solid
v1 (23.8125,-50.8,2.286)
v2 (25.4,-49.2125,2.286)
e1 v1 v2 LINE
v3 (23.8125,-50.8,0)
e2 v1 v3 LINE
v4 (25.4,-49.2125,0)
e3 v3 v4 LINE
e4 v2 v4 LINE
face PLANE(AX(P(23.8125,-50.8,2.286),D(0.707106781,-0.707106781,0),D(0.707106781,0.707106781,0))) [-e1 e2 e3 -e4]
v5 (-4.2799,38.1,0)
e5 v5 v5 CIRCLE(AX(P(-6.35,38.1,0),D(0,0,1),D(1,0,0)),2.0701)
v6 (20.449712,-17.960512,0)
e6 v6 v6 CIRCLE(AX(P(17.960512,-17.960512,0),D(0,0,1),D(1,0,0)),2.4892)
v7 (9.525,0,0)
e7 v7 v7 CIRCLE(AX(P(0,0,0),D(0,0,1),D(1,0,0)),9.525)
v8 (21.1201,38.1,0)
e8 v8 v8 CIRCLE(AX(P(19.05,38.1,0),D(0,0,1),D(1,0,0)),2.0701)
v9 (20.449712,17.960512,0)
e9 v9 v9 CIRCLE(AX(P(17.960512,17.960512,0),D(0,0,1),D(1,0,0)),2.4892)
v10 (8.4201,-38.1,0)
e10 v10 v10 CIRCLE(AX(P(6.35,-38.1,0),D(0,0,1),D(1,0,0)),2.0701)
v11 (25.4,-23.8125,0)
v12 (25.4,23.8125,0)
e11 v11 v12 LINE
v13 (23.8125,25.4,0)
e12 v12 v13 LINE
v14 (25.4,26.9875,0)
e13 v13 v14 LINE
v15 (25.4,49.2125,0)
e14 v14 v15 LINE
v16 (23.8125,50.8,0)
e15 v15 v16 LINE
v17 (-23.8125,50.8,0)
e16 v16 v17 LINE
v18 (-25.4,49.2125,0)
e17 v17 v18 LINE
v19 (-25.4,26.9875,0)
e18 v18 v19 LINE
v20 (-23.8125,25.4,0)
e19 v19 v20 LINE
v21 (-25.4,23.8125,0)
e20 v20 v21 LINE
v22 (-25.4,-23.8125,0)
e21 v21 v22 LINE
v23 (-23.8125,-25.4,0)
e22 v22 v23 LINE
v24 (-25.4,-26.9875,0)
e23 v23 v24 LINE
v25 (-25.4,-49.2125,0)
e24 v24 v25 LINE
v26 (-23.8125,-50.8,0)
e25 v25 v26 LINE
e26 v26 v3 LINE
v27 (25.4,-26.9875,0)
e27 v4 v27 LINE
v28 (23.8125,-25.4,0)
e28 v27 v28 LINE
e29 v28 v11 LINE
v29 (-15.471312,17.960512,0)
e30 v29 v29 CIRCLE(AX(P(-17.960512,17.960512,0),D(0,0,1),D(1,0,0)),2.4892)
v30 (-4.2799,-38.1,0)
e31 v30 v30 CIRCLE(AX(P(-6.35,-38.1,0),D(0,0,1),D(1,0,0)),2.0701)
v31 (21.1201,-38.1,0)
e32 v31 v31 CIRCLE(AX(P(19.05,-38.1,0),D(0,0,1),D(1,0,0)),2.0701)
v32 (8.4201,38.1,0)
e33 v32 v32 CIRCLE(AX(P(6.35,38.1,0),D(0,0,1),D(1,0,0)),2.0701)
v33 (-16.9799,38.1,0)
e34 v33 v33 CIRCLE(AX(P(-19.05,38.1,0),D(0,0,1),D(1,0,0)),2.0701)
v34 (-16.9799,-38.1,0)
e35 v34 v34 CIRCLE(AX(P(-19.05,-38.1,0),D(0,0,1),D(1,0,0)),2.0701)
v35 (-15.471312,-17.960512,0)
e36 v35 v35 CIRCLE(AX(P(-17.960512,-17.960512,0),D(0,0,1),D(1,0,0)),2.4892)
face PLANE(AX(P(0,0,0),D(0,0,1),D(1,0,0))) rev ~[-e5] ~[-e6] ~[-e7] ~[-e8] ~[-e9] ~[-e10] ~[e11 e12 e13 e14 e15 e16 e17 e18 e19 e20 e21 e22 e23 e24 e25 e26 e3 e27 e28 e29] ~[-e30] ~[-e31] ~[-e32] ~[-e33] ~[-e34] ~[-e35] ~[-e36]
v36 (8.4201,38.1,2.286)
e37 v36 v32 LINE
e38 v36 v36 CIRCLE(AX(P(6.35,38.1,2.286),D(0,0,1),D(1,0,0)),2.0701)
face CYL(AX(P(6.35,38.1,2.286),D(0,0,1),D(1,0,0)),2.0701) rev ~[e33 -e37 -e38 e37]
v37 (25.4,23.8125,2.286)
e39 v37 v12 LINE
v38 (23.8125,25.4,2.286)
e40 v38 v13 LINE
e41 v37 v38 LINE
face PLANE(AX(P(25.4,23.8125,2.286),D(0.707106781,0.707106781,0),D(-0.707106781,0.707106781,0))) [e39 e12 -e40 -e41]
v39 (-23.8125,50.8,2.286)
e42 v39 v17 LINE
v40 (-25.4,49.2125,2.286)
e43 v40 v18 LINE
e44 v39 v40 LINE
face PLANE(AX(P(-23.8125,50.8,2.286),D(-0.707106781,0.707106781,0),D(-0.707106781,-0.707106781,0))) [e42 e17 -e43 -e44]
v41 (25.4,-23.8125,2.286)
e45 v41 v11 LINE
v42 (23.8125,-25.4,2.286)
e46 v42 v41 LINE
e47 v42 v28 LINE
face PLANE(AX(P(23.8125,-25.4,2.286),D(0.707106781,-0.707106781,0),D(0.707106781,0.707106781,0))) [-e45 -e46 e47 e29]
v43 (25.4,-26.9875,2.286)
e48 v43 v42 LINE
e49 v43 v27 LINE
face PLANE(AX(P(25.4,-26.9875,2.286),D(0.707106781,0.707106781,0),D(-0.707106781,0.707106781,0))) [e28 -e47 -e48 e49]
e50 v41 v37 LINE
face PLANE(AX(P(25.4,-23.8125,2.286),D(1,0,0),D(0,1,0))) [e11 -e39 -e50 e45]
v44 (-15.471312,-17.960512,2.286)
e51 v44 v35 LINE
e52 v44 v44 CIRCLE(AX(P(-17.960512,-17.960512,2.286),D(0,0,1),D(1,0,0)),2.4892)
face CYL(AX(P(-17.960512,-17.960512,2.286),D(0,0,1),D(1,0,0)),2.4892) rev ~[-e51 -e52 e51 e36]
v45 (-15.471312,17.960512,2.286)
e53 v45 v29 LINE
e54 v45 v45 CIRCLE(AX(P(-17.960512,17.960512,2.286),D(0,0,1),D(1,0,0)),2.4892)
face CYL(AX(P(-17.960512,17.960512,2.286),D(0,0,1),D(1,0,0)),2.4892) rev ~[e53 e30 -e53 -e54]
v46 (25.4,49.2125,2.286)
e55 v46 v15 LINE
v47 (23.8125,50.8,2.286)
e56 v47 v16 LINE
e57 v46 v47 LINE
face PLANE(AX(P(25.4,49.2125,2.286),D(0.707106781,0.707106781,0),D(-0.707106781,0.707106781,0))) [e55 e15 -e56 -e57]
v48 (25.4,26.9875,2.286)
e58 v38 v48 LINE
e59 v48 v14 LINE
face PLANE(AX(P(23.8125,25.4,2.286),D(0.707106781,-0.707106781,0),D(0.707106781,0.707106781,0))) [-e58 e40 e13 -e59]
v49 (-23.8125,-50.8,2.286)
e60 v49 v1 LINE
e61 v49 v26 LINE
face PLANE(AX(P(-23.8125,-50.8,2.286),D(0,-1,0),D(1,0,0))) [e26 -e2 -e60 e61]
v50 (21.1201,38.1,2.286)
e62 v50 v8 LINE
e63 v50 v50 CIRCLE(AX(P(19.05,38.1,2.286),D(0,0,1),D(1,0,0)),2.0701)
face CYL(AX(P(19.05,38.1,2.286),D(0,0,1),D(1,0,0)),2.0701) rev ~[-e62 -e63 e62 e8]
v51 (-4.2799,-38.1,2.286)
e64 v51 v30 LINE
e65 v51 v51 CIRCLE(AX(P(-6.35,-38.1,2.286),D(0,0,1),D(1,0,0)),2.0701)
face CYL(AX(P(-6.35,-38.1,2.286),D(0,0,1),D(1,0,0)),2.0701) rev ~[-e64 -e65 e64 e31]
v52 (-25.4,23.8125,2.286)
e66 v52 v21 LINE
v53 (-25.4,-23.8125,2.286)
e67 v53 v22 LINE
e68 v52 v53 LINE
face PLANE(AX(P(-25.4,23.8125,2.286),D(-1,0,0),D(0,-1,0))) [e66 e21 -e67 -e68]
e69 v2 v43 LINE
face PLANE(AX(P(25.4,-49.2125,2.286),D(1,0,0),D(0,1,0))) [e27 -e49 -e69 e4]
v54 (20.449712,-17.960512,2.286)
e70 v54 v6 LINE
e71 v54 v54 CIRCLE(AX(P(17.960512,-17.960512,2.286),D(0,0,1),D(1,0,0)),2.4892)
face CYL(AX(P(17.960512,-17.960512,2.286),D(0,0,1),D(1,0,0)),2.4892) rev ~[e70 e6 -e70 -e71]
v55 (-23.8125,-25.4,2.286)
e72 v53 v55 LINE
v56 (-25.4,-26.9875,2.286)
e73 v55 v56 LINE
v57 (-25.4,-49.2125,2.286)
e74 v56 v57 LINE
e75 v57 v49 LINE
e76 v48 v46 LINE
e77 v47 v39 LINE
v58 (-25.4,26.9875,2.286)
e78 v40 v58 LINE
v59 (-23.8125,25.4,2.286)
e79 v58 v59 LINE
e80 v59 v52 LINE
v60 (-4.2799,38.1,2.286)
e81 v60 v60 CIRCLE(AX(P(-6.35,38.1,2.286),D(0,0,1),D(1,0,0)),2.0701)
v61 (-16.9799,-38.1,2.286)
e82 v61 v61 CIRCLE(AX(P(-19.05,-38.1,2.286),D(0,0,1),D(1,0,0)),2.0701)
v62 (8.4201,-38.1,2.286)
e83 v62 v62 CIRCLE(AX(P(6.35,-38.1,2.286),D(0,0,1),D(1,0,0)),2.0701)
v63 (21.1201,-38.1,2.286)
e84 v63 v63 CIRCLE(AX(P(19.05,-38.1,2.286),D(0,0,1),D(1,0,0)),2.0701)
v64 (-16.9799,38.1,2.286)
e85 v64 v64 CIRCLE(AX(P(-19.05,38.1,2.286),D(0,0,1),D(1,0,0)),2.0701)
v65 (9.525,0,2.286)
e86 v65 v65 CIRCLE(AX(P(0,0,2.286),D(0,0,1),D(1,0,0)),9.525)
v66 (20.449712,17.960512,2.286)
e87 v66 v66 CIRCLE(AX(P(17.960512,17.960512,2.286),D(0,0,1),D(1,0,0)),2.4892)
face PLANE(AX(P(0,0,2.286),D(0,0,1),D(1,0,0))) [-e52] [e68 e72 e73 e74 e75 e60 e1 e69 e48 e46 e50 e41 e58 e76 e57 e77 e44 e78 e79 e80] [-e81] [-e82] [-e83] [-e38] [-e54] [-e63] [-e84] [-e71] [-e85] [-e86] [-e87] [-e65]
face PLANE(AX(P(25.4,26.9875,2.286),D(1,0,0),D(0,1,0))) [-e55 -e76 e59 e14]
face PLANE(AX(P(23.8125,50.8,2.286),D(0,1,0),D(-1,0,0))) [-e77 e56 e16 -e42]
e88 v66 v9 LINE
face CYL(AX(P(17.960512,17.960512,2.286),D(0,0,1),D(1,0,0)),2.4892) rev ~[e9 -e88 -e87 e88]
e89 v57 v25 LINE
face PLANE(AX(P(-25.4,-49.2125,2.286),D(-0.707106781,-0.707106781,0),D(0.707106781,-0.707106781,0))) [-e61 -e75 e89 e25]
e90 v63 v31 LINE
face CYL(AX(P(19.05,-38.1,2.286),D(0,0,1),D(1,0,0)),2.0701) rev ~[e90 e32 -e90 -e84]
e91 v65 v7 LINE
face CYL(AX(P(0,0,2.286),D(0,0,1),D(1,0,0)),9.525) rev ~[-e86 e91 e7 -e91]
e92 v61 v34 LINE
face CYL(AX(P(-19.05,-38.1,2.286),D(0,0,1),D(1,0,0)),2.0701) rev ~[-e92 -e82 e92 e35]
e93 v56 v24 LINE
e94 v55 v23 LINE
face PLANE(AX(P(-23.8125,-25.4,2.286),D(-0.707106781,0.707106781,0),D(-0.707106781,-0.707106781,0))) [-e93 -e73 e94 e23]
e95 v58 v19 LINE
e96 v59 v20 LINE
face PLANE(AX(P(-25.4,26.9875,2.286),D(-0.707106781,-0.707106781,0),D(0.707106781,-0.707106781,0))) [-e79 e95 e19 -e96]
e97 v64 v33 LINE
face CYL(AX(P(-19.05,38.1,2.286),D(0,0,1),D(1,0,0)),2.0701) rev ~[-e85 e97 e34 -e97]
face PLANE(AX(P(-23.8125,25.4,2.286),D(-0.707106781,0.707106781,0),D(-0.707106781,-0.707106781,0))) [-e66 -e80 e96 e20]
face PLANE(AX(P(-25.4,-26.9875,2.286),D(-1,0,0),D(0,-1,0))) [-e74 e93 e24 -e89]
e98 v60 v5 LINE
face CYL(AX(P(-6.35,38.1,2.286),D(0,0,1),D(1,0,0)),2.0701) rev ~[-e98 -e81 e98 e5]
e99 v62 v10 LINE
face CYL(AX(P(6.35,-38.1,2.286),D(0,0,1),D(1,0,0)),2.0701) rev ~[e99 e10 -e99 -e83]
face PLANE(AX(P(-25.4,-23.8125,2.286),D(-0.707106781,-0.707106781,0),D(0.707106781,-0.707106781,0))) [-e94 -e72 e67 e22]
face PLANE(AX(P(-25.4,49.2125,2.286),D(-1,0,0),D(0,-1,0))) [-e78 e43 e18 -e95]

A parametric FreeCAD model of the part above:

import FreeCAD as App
import Part
import Sketcher

V = App.Vector
Q = App.Units.Quantity


def add_polygon(sketch, points):
    """Adds a closed chain of lines whose ends are joined by coincident constraints."""
    first, n = sketch.GeometryCount, len(points)
    for a, b in zip(points, points[1:] + points[:1]):
        sketch.addGeometry(Part.LineSegment(App.Vector(*a, 0), App.Vector(*b, 0)), False)
    for i in range(n):
        sketch.addConstraint(Sketcher.Constraint("Coincident", first + i, 2, first + (i + 1) % n, 1))

doc = App.newDocument("Part")
params = doc.addObject("Spreadsheet::Sheet", "Params")
for row, (alias, value) in enumerate([
    ("sketch1_diameter", "0.75 in"),
    ("sketch1_diameter2", "0.163 in"),
    ("sketch1_diameter3", "0.196 in"),
    ("sketch1_width", "1.875 in"),
    ("pad1_length", "0.09 in"),
], start=1):
    params.set(f"A{row}", alias)
    params.set(f"B{row}", "=" + value)
    params.setAlias(f"B{row}", alias)

body = doc.addObject("PartDesign::Body", "Body")

# Sketch on XY plane
sketch1 = doc.addObject("Sketcher::SketchObject", "Sketch")
body.addObject(sketch1)
sketch1.AttachmentSupport = (doc.XY_Plane, [""])
sketch1.MapMode = "FlatFace"
sketch1.AttachmentOffset = App.Placement(V(0, 0, 0.09 * 25.4), App.Rotation())
add_polygon(sketch1, [(25.4, -26.9875), (23.8125, -25.4), (25.4, -23.8125), (25.4, 23.8125), (23.8125, 25.4), (25.4, 26.9875), (25.4, 49.2125), (23.8125, 50.8), (-23.8125, 50.8), (-25.4, 49.2125), (-25.4, 26.9875), (-23.8125, 25.4), (-25.4, 23.8125), (-25.4, -23.8125), (-23.8125, -25.4), (-25.4, -26.9875), (-25.4, -49.2125), (-23.8125, -50.8), (23.8125, -50.8), (25.4, -49.2125)])  # lines 0-19
sketch1.addGeometry(Part.Circle(V(-19.05, -38.1, 0), V(0, 0, 1), 2.0701), False)  # 20
sketch1.addGeometry(Part.Circle(V(-6.35, -38.1, 0), V(0, 0, 1), 2.0701), False)  # 21
sketch1.addGeometry(Part.Circle(V(-17.960512, -17.960512, 0), V(0, 0, 1), 2.4892), False)  # 22
sketch1.addGeometry(Part.Circle(V(6.35, -38.1, 0), V(0, 0, 1), 2.0701), False)  # 23
sketch1.addGeometry(Part.Circle(V(19.05, -38.1, 0), V(0, 0, 1), 2.0701), False)  # 24
sketch1.addGeometry(Part.Circle(V(17.960512, -17.960512, 0), V(0, 0, 1), 2.4892), False)  # 25
sketch1.addGeometry(Part.Circle(V(-17.960512, 17.960512, 0), V(0, 0, 1), 2.4892), False)  # 26
sketch1.addGeometry(Part.Circle(V(0, 0, 0), V(0, 0, 1), 9.525), False)  # 27
sketch1.addGeometry(Part.Circle(V(-19.05, 38.1, 0), V(0, 0, 1), 2.0701), False)  # 28
sketch1.addGeometry(Part.Circle(V(-6.35, 38.1, 0), V(0, 0, 1), 2.0701), False)  # 29
sketch1.addGeometry(Part.Circle(V(17.960512, 17.960512, 0), V(0, 0, 1), 2.4892), False)  # 30
sketch1.addGeometry(Part.Circle(V(6.35, 38.1, 0), V(0, 0, 1), 2.0701), False)  # 31
sketch1.addGeometry(Part.Circle(V(19.05, 38.1, 0), V(0, 0, 1), 2.0701), False)  # 32
sketch1.addConstraint(Sketcher.Constraint("Vertical", 2))
sketch1.addConstraint(Sketcher.Constraint("Vertical", 5))
sketch1.addConstraint(Sketcher.Constraint("Horizontal", 7))
sketch1.addConstraint(Sketcher.Constraint("Vertical", 9))
sketch1.addConstraint(Sketcher.Constraint("Vertical", 12))
sketch1.addConstraint(Sketcher.Constraint("Vertical", 15))
sketch1.addConstraint(Sketcher.Constraint("Horizontal", 17))
sketch1.addConstraint(Sketcher.Constraint("Vertical", 19))
sketch1.addConstraint(Sketcher.Constraint("Coincident", 27, 3, -1, 1))
sketch1.addConstraint(Sketcher.Constraint("Equal", 20, 21))
sketch1.addConstraint(Sketcher.Constraint("Equal", 21, 23))
sketch1.addConstraint(Sketcher.Constraint("Equal", 23, 24))
sketch1.addConstraint(Sketcher.Constraint("Equal", 22, 25))
sketch1.addConstraint(Sketcher.Constraint("Equal", 25, 26))
sketch1.addConstraint(Sketcher.Constraint("Equal", 24, 28))
sketch1.addConstraint(Sketcher.Constraint("Equal", 28, 29))
sketch1.addConstraint(Sketcher.Constraint("Equal", 26, 30))
sketch1.addConstraint(Sketcher.Constraint("Equal", 29, 31))
sketch1.addConstraint(Sketcher.Constraint("Equal", 31, 32))
sketch1.addConstraint(Sketcher.Constraint("Symmetric", 25, 3, 26, 3, -1, 1))
sketch1.addConstraint(Sketcher.Constraint("Symmetric", 24, 3, 28, 3, -1, 1))
sketch1.addConstraint(Sketcher.Constraint("Symmetric", 23, 3, 29, 3, -1, 1))
sketch1.addConstraint(Sketcher.Constraint("Symmetric", 22, 3, 30, 3, -1, 1))
sketch1.addConstraint(Sketcher.Constraint("Symmetric", 21, 3, 31, 3, -1, 1))
sketch1.addConstraint(Sketcher.Constraint("Symmetric", 20, 3, 32, 3, -1, 1))
sketch1.addConstraint(Sketcher.Constraint("Symmetric", 0, 2, 10, 2, -1, 1))
sketch1.addConstraint(Sketcher.Constraint("Symmetric", 1, 2, 11, 2, -1, 1))
sketch1.addConstraint(Sketcher.Constraint("Symmetric", 3, 2, 13, 2, -1, 1))
sketch1.addConstraint(Sketcher.Constraint("Symmetric", 4, 2, 14, 2, -1, 1))
sketch1.addConstraint(Sketcher.Constraint("Symmetric", 6, 2, 16, 2, -1, 1))
sketch1.addConstraint(Sketcher.Constraint("Symmetric", 8, 2, 18, 2, -1, 1))
sketch1.addConstraint(Sketcher.Constraint("Symmetric", 21, 3, 23, 3, -2))
sketch1.addConstraint(Sketcher.Constraint("Symmetric", 20, 3, 24, 3, -2))
sketch1.addConstraint(Sketcher.Constraint("Symmetric", 22, 3, 25, 3, -2))
sketch1.addConstraint(Sketcher.Constraint("Symmetric", 5, 2, 8, 2, -2))
sketch1.addConstraint(Sketcher.Constraint("Symmetric", 3, 2, 10, 2, -2))
sketch1.addConstraint(Sketcher.Constraint("Perpendicular", 0, 1))
sketch1.addConstraint(Sketcher.Constraint("Perpendicular", 1, 3))
sketch1.addConstraint(Sketcher.Constraint("Perpendicular", 3, 4))
sketch1.addConstraint(Sketcher.Constraint("Perpendicular", 4, 6))
sketch1.addConstraint(Sketcher.Constraint("Perpendicular", 6, 8))
sketch1.addConstraint(Sketcher.Constraint("Perpendicular", 8, 10))
sketch1.addConstraint(Sketcher.Constraint("Perpendicular", 11, 13))
sketch1.addConstraint(Sketcher.Constraint("Perpendicular", 14, 16))
sketch1.addConstraint(Sketcher.Constraint("Perpendicular", 16, 18))
sketch1.addConstraint(Sketcher.Constraint("Horizontal", 20, 3, 21, 3))
sketch1.addConstraint(Sketcher.Constraint("Horizontal", 4, 2, 9, 2))
sketch1.addConstraint(Sketcher.Constraint("Vertical", 2, 2, 4, 2))
sketch1.addConstraint(Sketcher.Constraint("Vertical", 3, 2, 6, 2))
sketch1.addConstraint(Sketcher.Constraint("Equal", 17, 2))
sketch1.addConstraint(Sketcher.Constraint("Diameter", 27, Q("0.75 in")))
sketch1.addConstraint(Sketcher.Constraint("Diameter", 20, Q("0.163 in")))
sketch1.addConstraint(Sketcher.Constraint("Diameter", 22, Q("0.196 in")))
sketch1.addConstraint(Sketcher.Constraint("DistanceY", 0, 2, -1, 1, Q("1 in")))
sketch1.addConstraint(Sketcher.Constraint("DistanceY", -1, 1, 6, 2, Q("2 in")))
sketch1.addConstraint(Sketcher.Constraint("DistanceX", 20, 3, 23, 3, Q("1 in")))
sketch1.addConstraint(Sketcher.Constraint("DistanceY", 20, 3, 28, 3, Q("3 in")))
sketch1.addConstraint(Sketcher.Constraint("DistanceX", 20, 3, 21, 3, Q("0.5 in")))
sketch1.addConstraint(Sketcher.Constraint("DistanceX", 7, 2, 7, 1, Q("1.875 in")))
sketch1.addConstraint(Sketcher.Constraint("DistanceX", 22, 3, -1, 1, Q("17.960512 mm")))
sketch1.addConstraint(Sketcher.Constraint("DistanceY", 22, 3, -1, 1, Q("17.960512 mm")))
sketch1.setExpression("Constraints[70]", "Params.sketch1_diameter")
sketch1.setExpression("Constraints[71]", "Params.sketch1_diameter2")
sketch1.setExpression("Constraints[72]", "Params.sketch1_diameter3")
sketch1.setExpression("Constraints[78]", "Params.sketch1_width")
pad1 = doc.addObject("PartDesign::Pad", "Pad")
body.addObject(pad1)
pad1.Profile = sketch1
pad1.setExpression("Length", "Params.pad1_length")
pad1.Reversed = True

doc.recompute()
